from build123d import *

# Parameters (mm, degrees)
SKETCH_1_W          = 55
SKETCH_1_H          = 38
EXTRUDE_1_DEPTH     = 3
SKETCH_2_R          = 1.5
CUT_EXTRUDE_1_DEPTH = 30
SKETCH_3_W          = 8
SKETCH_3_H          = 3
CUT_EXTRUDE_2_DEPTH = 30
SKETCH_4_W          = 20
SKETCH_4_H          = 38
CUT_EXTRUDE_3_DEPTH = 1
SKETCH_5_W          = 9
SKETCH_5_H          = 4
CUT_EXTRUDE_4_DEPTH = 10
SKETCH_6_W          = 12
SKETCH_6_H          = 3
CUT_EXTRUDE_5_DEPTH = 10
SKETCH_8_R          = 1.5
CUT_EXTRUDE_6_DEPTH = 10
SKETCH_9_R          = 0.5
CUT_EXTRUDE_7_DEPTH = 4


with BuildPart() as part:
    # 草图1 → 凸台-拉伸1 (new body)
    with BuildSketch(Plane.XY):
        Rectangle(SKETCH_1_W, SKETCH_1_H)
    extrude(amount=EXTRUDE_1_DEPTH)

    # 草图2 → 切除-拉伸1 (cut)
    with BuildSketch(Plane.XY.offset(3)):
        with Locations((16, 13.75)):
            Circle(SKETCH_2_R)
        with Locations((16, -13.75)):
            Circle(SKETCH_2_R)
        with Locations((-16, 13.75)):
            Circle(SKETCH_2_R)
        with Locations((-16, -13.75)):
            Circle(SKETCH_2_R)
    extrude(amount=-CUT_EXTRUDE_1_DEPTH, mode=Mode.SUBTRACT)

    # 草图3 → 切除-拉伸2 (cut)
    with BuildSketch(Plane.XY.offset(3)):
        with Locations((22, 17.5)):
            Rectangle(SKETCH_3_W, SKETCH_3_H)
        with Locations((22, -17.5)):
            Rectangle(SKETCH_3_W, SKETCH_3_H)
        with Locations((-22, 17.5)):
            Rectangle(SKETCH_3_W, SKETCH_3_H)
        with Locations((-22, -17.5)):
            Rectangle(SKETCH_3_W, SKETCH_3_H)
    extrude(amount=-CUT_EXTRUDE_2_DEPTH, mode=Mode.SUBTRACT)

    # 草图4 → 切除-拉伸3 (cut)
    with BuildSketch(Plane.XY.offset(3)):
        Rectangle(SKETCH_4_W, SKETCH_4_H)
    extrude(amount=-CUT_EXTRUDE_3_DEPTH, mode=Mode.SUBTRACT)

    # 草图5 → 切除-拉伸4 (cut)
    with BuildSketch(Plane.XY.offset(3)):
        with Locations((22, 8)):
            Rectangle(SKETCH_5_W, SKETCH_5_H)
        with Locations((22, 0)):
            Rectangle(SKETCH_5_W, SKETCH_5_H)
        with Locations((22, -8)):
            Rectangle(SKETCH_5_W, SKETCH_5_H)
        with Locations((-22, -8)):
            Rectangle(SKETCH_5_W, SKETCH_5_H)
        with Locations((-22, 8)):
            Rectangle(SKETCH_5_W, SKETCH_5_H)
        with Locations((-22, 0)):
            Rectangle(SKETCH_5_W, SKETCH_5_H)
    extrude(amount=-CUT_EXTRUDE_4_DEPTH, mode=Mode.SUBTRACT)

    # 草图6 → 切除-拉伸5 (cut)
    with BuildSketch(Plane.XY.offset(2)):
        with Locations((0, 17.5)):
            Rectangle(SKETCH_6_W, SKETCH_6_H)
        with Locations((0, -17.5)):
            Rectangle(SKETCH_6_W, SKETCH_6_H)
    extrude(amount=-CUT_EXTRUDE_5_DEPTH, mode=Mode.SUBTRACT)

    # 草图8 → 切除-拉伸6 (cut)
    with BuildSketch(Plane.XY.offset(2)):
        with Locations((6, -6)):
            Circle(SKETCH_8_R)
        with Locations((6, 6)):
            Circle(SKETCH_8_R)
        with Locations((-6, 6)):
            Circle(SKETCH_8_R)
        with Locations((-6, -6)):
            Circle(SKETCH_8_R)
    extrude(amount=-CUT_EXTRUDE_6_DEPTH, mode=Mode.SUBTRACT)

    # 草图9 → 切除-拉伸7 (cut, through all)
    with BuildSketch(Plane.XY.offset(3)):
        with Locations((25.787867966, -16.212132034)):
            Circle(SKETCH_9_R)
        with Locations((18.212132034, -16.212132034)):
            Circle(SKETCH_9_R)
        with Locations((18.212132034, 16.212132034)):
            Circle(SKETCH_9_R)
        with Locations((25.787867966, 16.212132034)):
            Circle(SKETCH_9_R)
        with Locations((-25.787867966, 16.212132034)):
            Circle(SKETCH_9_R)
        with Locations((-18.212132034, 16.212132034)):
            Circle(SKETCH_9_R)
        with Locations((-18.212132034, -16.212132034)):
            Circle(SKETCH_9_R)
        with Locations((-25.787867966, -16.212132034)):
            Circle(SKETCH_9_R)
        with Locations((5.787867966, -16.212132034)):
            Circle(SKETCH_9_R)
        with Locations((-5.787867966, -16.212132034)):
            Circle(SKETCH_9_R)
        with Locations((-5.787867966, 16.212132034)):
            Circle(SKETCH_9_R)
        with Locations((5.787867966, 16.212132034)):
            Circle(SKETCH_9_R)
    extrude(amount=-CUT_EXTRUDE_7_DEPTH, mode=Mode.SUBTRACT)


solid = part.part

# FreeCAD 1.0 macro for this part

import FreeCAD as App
import Part
import Sketcher
from FreeCAD import Vector
Q = App.Units.Quantity


def add_polygon(sketch, points):
    """Adds a closed chain of lines whose ends are joined by coincident constraints."""
    first, n = sketch.GeometryCount, len(points)
    for a, b in zip(points, points[1:] + points[:1]):
        sketch.addGeometry(Part.LineSegment(App.Vector(*a, 0), App.Vector(*b, 0)), False)
    for i in range(n):
        sketch.addConstraint(Sketcher.Constraint("Coincident", first + i, 2, first + (i + 1) % n, 1))

doc = App.newDocument("Part")
body = doc.addObject("PartDesign::Body", "Body")

sketch1 = body.newObject("Sketcher::SketchObject", "Sketch")
sketch1.AttachmentSupport = (doc.getObject("XY_Plane"), [""])
sketch1.MapMode = "FlatFace"
add_polygon(sketch1, [(-28, 19), (-28, -19), (28, -19), (28, 19)])
sketch1.addConstraint(Sketcher.Constraint("Vertical", 0))
sketch1.addConstraint(Sketcher.Constraint("Horizontal", 1))
sketch1.addConstraint(Sketcher.Constraint("Vertical", 2))
sketch1.addConstraint(Sketcher.Constraint("Horizontal", 3))
sketch1.addConstraint(Sketcher.Constraint("Symmetric", 0, 2, 2, 2, -1, 1))
sketch1.addConstraint(Sketcher.Constraint("DistanceX", 1, 1, 1, 2, Q("55 mm")))
sketch1.addConstraint(Sketcher.Constraint("DistanceY", 0, 2, 0, 1, Q("38 mm")))
pad1 = body.newObject("PartDesign::Pad", "Pad")
pad1.Profile = sketch1
pad1.Length = 3

sketch2 = body.newObject("Sketcher::SketchObject", "Sketch001")
sketch2.AttachmentSupport = (doc.getObject("XY_Plane"), [""])
sketch2.MapMode = "FlatFace"
sketch2.AttachmentOffset = App.Placement(Vector(0, 0, 3), App.Rotation())
sketch2.addGeometry(Part.Circle(Vector(16, 13.8, 0), Vector(0, 0, 1), 1.5), False)
sketch2.addGeometry(Part.Circle(Vector(16, -13.8, 0), Vector(0, 0, 1), 1.5), False)
sketch2.addGeometry(Part.Circle(Vector(-16, 13.8, 0), Vector(0, 0, 1), 1.5), False)
sketch2.addGeometry(Part.Circle(Vector(-16, -13.8, 0), Vector(0, 0, 1), 1.5), False)
sketch2.addConstraint(Sketcher.Constraint("Equal", 0, 1))
sketch2.addConstraint(Sketcher.Constraint("Equal", 1, 2))
sketch2.addConstraint(Sketcher.Constraint("Equal", 2, 3))
sketch2.addConstraint(Sketcher.Constraint("Symmetric", 1, 3, 2, 3, -1, 1))
sketch2.addConstraint(Sketcher.Constraint("Symmetric", 0, 3, 3, 3, -1, 1))
sketch2.addConstraint(Sketcher.Constraint("Symmetric", 0, 3, 2, 3, -2))
sketch2.addConstraint(Sketcher.Constraint("Diameter", 0, Q("3 mm")))
sketch2.addConstraint(Sketcher.Constraint("DistanceX", -1, 1, 0, 3, Q("16 mm")))
sketch2.addConstraint(Sketcher.Constraint("DistanceY", 1, 3, 0, 3, Q("27.5 mm")))
pocket1 = body.newObject("PartDesign::Pocket", "Pocket")
pocket1.Profile = sketch2
pocket1.Length = 30

sketch3 = body.newObject("Sketcher::SketchObject", "Sketch002")
sketch3.AttachmentSupport = (doc.getObject("XY_Plane"), [""])
sketch3.MapMode = "FlatFace"
sketch3.AttachmentOffset = App.Placement(Vector(0, 0, 3), App.Rotation())
add_polygon(sketch3, [(18, 19), (18, 16), (26, 16), (26, 19)])
add_polygon(sketch3, [(18, -16), (18, -19), (26, -19), (26, -16)])
add_polygon(sketch3, [(-26, 19), (-26, 16), (-18, 16), (-18, 19)])
add_polygon(sketch3, [(-26, -16), (-26, -19), (-18, -19), (-18, -16)])
sketch3.addConstraint(Sketcher.Constraint("Vertical", 0))
sketch3.addConstraint(Sketcher.Constraint("Horizontal", 1))
sketch3.addConstraint(Sketcher.Constraint("Vertical", 2))
sketch3.addConstraint(Sketcher.Constraint("Horizontal", 3))
sketch3.addConstraint(Sketcher.Constraint("Vertical", 4))
sketch3.addConstraint(Sketcher.Constraint("Horizontal", 5))
sketch3.addConstraint(Sketcher.Constraint("Vertical", 6))
sketch3.addConstraint(Sketcher.Constraint("Horizontal", 7))
sketch3.addConstraint(Sketcher.Constraint("Vertical", 8))
sketch3.addConstraint(Sketcher.Constraint("Horizontal", 9))
sketch3.addConstraint(Sketcher.Constraint("Vertical", 10))
sketch3.addConstraint(Sketcher.Constraint("Horizontal", 11))
sketch3.addConstraint(Sketcher.Constraint("Vertical", 12))
sketch3.addConstraint(Sketcher.Constraint("Horizontal", 13))
sketch3.addConstraint(Sketcher.Constraint("Vertical", 14))
sketch3.addConstraint(Sketcher.Constraint("Horizontal", 15))
sketch3.addConstraint(Sketcher.Constraint("Symmetric", 6, 2, 8, 2, -1, 1))
sketch3.addConstraint(Sketcher.Constraint("Symmetric", 4, 2, 10, 2, -1, 1))
sketch3.addConstraint(Sketcher.Constraint("Symmetric", 2, 2, 12, 2, -1, 1))
sketch3.addConstraint(Sketcher.Constraint("Symmetric", 0, 2, 14, 2, -1, 1))
sketch3.addConstraint(Sketcher.Constraint("Symmetric", 1, 2, 8, 2, -2))
sketch3.addConstraint(Sketcher.Constraint("Symmetric", 3, 2, 10, 2, -2))
sketch3.addConstraint(Sketcher.Constraint("DistanceX", 1, 1, 1, 2, Q("8 mm")))
sketch3.addConstraint(Sketcher.Constraint("DistanceY", 0, 2, 0, 1, Q("3 mm")))
sketch3.addConstraint(Sketcher.Constraint("DistanceX", -1, 1, 0, 2, Q("18 mm")))
sketch3.addConstraint(Sketcher.Constraint("DistanceY", -1, 1, 0, 2, Q("16 mm")))
pocket2 = body.newObject("PartDesign::Pocket", "Pocket001")
pocket2.Profile = sketch3
pocket2.Length = 30

sketch4 = body.newObject("Sketcher::SketchObject", "Sketch003")
sketch4.AttachmentSupport = (doc.getObject("XY_Plane"), [""])
sketch4.MapMode = "FlatFace"
sketch4.AttachmentOffset = App.Placement(Vector(0, 0, 3), App.Rotation())
add_polygon(sketch4, [(-10, 19), (-10, -19), (10, -19), (10, 19)])
sketch4.addConstraint(Sketcher.Constraint("Vertical", 0))
sketch4.addConstraint(Sketcher.Constraint("Horizontal", 1))
sketch4.addConstraint(Sketcher.Constraint("Vertical", 2))
sketch4.addConstraint(Sketcher.Constraint("Horizontal", 3))
sketch4.addConstraint(Sketcher.Constraint("Symmetric", 0, 2, 2, 2, -1, 1))
sketch4.addConstraint(Sketcher.Constraint("DistanceX", 1, 1, 1, 2, Q("20 mm")))
sketch4.addConstraint(Sketcher.Constraint("DistanceY", 0, 2, 0, 1, Q("38 mm")))
pocket3 = body.newObject("PartDesign::Pocket", "Pocket002")
pocket3.Profile = sketch4
pocket3.Length = 1

sketch5 = body.newObject("Sketcher::SketchObject", "Sketch004")
sketch5.AttachmentSupport = (doc.getObject("XY_Plane"), [""])
sketch5.MapMode = "FlatFace"
sketch5.AttachmentOffset = App.Placement(Vector(0, 0, 3), App.Rotation())
add_polygon(sketch5, [(17.5, 10), (17.5, 6), (26.5, 6), (26.5, 10)])
add_polygon(sketch5, [(17.5, 2), (17.5, -2), (26.5, -2), (26.5, 2)])
add_polygon(sketch5, [(17.5, -6), (17.5, -10), (26.5, -10), (26.5, -6)])
add_polygon(sketch5, [(-26.5, -6), (-26.5, -10), (-17.5, -10), (-17.5, -6)])
add_polygon(sketch5, [(-26.5, 10), (-26.5, 6), (-17.5, 6), (-17.5, 10)])
add_polygon(sketch5, [(-26.5, 2), (-26.5, -2), (-17.5, -2), (-17.5, 2)])
sketch5.addConstraint(Sketcher.Constraint("Vertical", 0))
sketch5.addConstraint(Sketcher.Constraint("Horizontal", 1))
sketch5.addConstraint(Sketcher.Constraint("Vertical", 2))
sketch5.addConstraint(Sketcher.Constraint("Horizontal", 3))
sketch5.addConstraint(Sketcher.Constraint("Vertical", 4))
sketch5.addConstraint(Sketcher.Constraint("Horizontal", 5))
sketch5.addConstraint(Sketcher.Constraint("Vertical", 6))
sketch5.addConstraint(Sketcher.Constraint("Horizontal", 7))
sketch5.addConstraint(Sketcher.Constraint("Vertical", 8))
sketch5.addConstraint(Sketcher.Constraint("Horizontal", 9))
sketch5.addConstraint(Sketcher.Constraint("Vertical", 10))
sketch5.addConstraint(Sketcher.Constraint("Horizontal", 11))
sketch5.addConstraint(Sketcher.Constraint("Vertical", 12))
sketch5.addConstraint(Sketcher.Constraint("Horizontal", 13))
sketch5.addConstraint(Sketcher.Constraint("Vertical", 14))
sketch5.addConstraint(Sketcher.Constraint("Horizontal", 15))
sketch5.addConstraint(Sketcher.Constraint("Vertical", 16))
sketch5.addConstraint(Sketcher.Constraint("Horizontal", 17))
sketch5.addConstraint(Sketcher.Constraint("Vertical", 18))
sketch5.addConstraint(Sketcher.Constraint("Horizontal", 19))
sketch5.addConstraint(Sketcher.Constraint("Vertical", 20))
sketch5.addConstraint(Sketcher.Constraint("Horizontal", 21))
sketch5.addConstraint(Sketcher.Constraint("Vertical", 22))
sketch5.addConstraint(Sketcher.Constraint("Horizontal", 23))
sketch5.addConstraint(Sketcher.Constraint("Symmetric", 2, 2, 12, 2, -1, 1))
sketch5.addConstraint(Sketcher.Constraint("Symmetric", 0, 2, 14, 2, -1, 1))
sketch5.addConstraint(Sketcher.Constraint("Symmetric", 10, 2, 16, 2, -1, 1))
sketch5.addConstraint(Sketcher.Constraint("Symmetric", 8, 2, 18, 2, -1, 1))
sketch5.addConstraint(Sketcher.Constraint("Symmetric", 6, 2, 20, 2, -1, 1))
sketch5.addConstraint(Sketcher.Constraint("Symmetric", 4, 2, 22, 2, -1, 1))
sketch5.addConstraint(Sketcher.Constraint("Symmetric", 9, 2, 12, 2, -2))
sketch5.addConstraint(Sketcher.Constraint("Symmetric", 11, 2, 14, 2, -2))
sketch5.addConstraint(Sketcher.Constraint("Horizontal", 5, 2, 20, 2))
sketch5.addConstraint(Sketcher.Constraint("Vertical", 3, 2, 4, 2))
sketch5.addConstraint(Sketcher.Constraint("Vertical", 2, 2, 5, 2))
sketch5.addConstraint(Sketcher.Constraint("Equal", 2, 4))
sketch5.addConstraint(Sketcher.Constraint("DistanceX", 1, 1, 1, 2, Q("9 mm")))
sketch5.addConstraint(Sketcher.Constraint("DistanceY", 0, 2, 0, 1, Q("4 mm")))
sketch5.addConstraint(Sketcher.Constraint("DistanceY", -1, 1, 0, 2, Q("6 mm")))
sketch5.addConstraint(Sketcher.Constraint("DistanceX", 12, 2, 8, 2, Q("44 mm")))
pocket4 = body.newObject("PartDesign::Pocket", "Pocket003")
pocket4.Profile = sketch5
pocket4.Length = 10

sketch6 = body.newObject("Sketcher::SketchObject", "Sketch005")
sketch6.AttachmentSupport = (doc.getObject("XY_Plane"), [""])
sketch6.MapMode = "FlatFace"
sketch6.AttachmentOffset = App.Placement(Vector(0, 0, 2), App.Rotation())
add_polygon(sketch6, [(-6, 19), (-6, 16), (6, 16), (6, 19)])
add_polygon(sketch6, [(-6, -16), (-6, -19), (6, -19), (6, -16)])
sketch6.addConstraint(Sketcher.Constraint("Vertical", 0))
sketch6.addConstraint(Sketcher.Constraint("Horizontal", 1))
sketch6.addConstraint(Sketcher.Constraint("Vertical", 2))
sketch6.addConstraint(Sketcher.Constraint("Horizontal", 3))
sketch6.addConstraint(Sketcher.Constraint("Vertical", 4))
sketch6.addConstraint(Sketcher.Constraint("Horizontal", 5))
sketch6.addConstraint(Sketcher.Constraint("Vertical", 6))
sketch6.addConstraint(Sketcher.Constraint("Horizontal", 7))
sketch6.addConstraint(Sketcher.Constraint("Symmetric", 2, 2, 4, 2, -1, 1))
sketch6.addConstraint(Sketcher.Constraint("Symmetric", 0, 2, 6, 2, -1, 1))
sketch6.addConstraint(Sketcher.Constraint("Vertical", 3, 2, 4, 2))
sketch6.addConstraint(Sketcher.Constraint("DistanceX", 1, 1, 1, 2, Q("12 mm")))
sketch6.addConstraint(Sketcher.Constraint("DistanceY", 0, 2, 0, 1, Q("3 mm")))
sketch6.addConstraint(Sketcher.Constraint("DistanceY", -1, 1, 0, 2, Q("16 mm")))
pocket5 = body.newObject("PartDesign::Pocket", "Pocket004")
pocket5.Profile = sketch6
pocket5.Length = 10

sketch7 = body.newObject("Sketcher::SketchObject", "Sketch006")
sketch7.AttachmentSupport = (doc.getObject("XY_Plane"), [""])
sketch7.MapMode = "FlatFace"
sketch7.AttachmentOffset = App.Placement(Vector(0, 0, 2), App.Rotation())
sketch7.addGeometry(Part.Circle(Vector(6, -6, 0), Vector(0, 0, 1), 1.5), False)
sketch7.addGeometry(Part.Circle(Vector(6, 6, 0), Vector(0, 0, 1), 1.5), False)
sketch7.addGeometry(Part.Circle(Vector(-6, 6, 0), Vector(0, 0, 1), 1.5), False)
sketch7.addGeometry(Part.Circle(Vector(-6, -6, 0), Vector(0, 0, 1), 1.5), False)
sketch7.addConstraint(Sketcher.Constraint("Equal", 0, 1))
sketch7.addConstraint(Sketcher.Constraint("Equal", 1, 2))
sketch7.addConstraint(Sketcher.Constraint("Equal", 2, 3))
sketch7.addConstraint(Sketcher.Constraint("Symmetric", 0, 3, 2, 3, -1, 1))
sketch7.addConstraint(Sketcher.Constraint("Symmetric", 1, 3, 3, 3, -1, 1))
sketch7.addConstraint(Sketcher.Constraint("Symmetric", 1, 3, 2, 3, -2))
sketch7.addConstraint(Sketcher.Constraint("Diameter", 0, Q("3 mm")))
sketch7.addConstraint(Sketcher.Constraint("DistanceX", -1, 1, 0, 3, Q("6 mm")))
sketch7.addConstraint(Sketcher.Constraint("DistanceY", 0, 3, -1, 1, Q("6 mm")))
pocket6 = body.newObject("PartDesign::Pocket", "Pocket005")
pocket6.Profile = sketch7
pocket6.Length = 10

sketch8 = body.newObject("Sketcher::SketchObject", "Sketch007")
sketch8.AttachmentSupport = (doc.getObject("XY_Plane"), [""])
sketch8.MapMode = "FlatFace"
sketch8.AttachmentOffset = App.Placement(Vector(0, 0, 3), App.Rotation())
sketch8.addGeometry(Part.Circle(Vector(25.8, -16.2, 0), Vector(0, 0, 1), 0.5), False)
sketch8.addGeometry(Part.Circle(Vector(18.2, -16.2, 0), Vector(0, 0, 1), 0.5), False)
sketch8.addGeometry(Part.Circle(Vector(18.2, 16.2, 0), Vector(0, 0, 1), 0.5), False)
sketch8.addGeometry(Part.Circle(Vector(25.8, 16.2, 0), Vector(0, 0, 1), 0.5), False)
sketch8.addGeometry(Part.Circle(Vector(-25.8, 16.2, 0), Vector(0, 0, 1), 0.5), False)
sketch8.addGeometry(Part.Circle(Vector(-18.2, 16.2, 0), Vector(0, 0, 1), 0.5), False)
sketch8.addGeometry(Part.Circle(Vector(-18.2, -16.2, 0), Vector(0, 0, 1), 0.5), False)
sketch8.addGeometry(Part.Circle(Vector(-25.8, -16.2, 0), Vector(0, 0, 1), 0.5), False)
sketch8.addGeometry(Part.Circle(Vector(5.8, -16.2, 0), Vector(0, 0, 1), 0.5), False)
sketch8.addGeometry(Part.Circle(Vector(-5.8, -16.2, 0), Vector(0, 0, 1), 0.5), False)
sketch8.addGeometry(Part.Circle(Vector(-5.8, 16.2, 0), Vector(0, 0, 1), 0.5), False)
sketch8.addGeometry(Part.Circle(Vector(5.8, 16.2, 0), Vector(0, 0, 1), 0.5), False)
sketch8.addConstraint(Sketcher.Constraint("Equal", 0, 1))
sketch8.addConstraint(Sketcher.Constraint("Equal", 1, 2))
sketch8.addConstraint(Sketcher.Constraint("Equal", 2, 3))
sketch8.addConstraint(Sketcher.Constraint("Equal", 3, 4))
sketch8.addConstraint(Sketcher.Constraint("Equal", 4, 5))
sketch8.addConstraint(Sketcher.Constraint("Equal", 5, 6))
sketch8.addConstraint(Sketcher.Constraint("Equal", 6, 7))
sketch8.addConstraint(Sketcher.Constraint("Equal", 7, 8))
sketch8.addConstraint(Sketcher.Constraint("Equal", 8, 9))
sketch8.addConstraint(Sketcher.Constraint("Equal", 9, 10))
sketch8.addConstraint(Sketcher.Constraint("Equal", 10, 11))
sketch8.addConstraint(Sketcher.Constraint("Symmetric", 0, 3, 4, 3, -1, 1))
sketch8.addConstraint(Sketcher.Constraint("Symmetric", 1, 3, 5, 3, -1, 1))
sketch8.addConstraint(Sketcher.Constraint("Symmetric", 2, 3, 6, 3, -1, 1))
sketch8.addConstraint(Sketcher.Constraint("Symmetric", 3, 3, 7, 3, -1, 1))
sketch8.addConstraint(Sketcher.Constraint("Symmetric", 8, 3, 10, 3, -1, 1))
sketch8.addConstraint(Sketcher.Constraint("Symmetric", 9, 3, 11, 3, -1, 1))
sketch8.addConstraint(Sketcher.Constraint("Symmetric", 3, 3, 4, 3, -2))
sketch8.addConstraint(Sketcher.Constraint("Symmetric", 2, 3, 5, 3, -2))
sketch8.addConstraint(Sketcher.Constraint("Symmetric", 8, 3, 9, 3, -2))
sketch8.addConstraint(Sketcher.Constraint("Horizontal", 0, 3, 1, 3))
sketch8.addConstraint(Sketcher.Constraint("Horizontal", 7, 3, 8, 3))
sketch8.addConstraint(Sketcher.Constraint("Diameter", 0, Q("1 mm")))
sketch8.addConstraint(Sketcher.Constraint("DistanceX", 4, 3, 2, 3, Q("44 mm")))
sketch8.addConstraint(Sketcher.Constraint("DistanceX", 8, 3, 0, 3, Q("20 mm")))
sketch8.addConstraint(Sketcher.Constraint("DistanceX", -1, 1, 0, 3, Q("25.787868 mm")))
sketch8.addConstraint(Sketcher.Constraint("DistanceY", 0, 3, -1, 1, Q("16.212132 mm")))
pocket7 = body.newObject("PartDesign::Pocket", "Pocket006")
pocket7.Profile = sketch8
pocket7.Type = "ThroughAll"

doc.recompute()
